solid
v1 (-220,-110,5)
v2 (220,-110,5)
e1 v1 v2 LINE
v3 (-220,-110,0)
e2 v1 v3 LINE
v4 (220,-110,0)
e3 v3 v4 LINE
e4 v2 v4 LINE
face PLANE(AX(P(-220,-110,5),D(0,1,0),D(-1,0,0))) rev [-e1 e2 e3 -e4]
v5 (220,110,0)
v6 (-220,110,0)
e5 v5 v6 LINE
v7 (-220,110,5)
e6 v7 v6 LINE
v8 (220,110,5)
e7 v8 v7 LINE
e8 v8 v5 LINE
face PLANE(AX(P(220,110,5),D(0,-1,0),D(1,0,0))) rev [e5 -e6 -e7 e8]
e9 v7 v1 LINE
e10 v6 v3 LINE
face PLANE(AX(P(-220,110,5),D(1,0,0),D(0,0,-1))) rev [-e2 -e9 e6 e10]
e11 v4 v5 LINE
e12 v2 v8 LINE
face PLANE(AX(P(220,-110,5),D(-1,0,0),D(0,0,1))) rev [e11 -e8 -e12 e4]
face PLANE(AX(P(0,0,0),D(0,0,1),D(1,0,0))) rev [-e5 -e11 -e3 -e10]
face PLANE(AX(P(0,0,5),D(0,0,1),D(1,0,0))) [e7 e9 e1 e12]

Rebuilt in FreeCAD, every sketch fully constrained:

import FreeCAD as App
import Part
import Sketcher
from FreeCAD import Vector
Q = App.Units.Quantity


def add_polygon(sketch, points):
    """Adds a closed chain of lines whose ends are joined by coincident constraints."""
    first, n = sketch.GeometryCount, len(points)
    for a, b in zip(points, points[1:] + points[:1]):
        sketch.addGeometry(Part.LineSegment(App.Vector(*a, 0), App.Vector(*b, 0)), False)
    for i in range(n):
        sketch.addConstraint(Sketcher.Constraint("Coincident", first + i, 2, first + (i + 1) % n, 1))

doc = App.newDocument("Part")
params = doc.addObject("Spreadsheet::Sheet", "Params")
for row, (alias, value) in enumerate([
    ("sketch1_width", "440 mm"),
    ("sketch1_height", "220 mm"),
    ("pad1_length", "5 mm"),
], start=1):
    params.set(f"A{row}", alias)
    params.set(f"B{row}", "=" + value)
    params.setAlias(f"B{row}", alias)

body = doc.addObject("PartDesign::Body", "Body")

sketch1 = doc.addObject("Sketcher::SketchObject", "Sketch")
body.addObject(sketch1)
sketch1.AttachmentSupport = (doc.XY_Plane, [""])
sketch1.MapMode = "FlatFace"
add_polygon(sketch1, [(-220, 110), (-220, -110), (220, -110), (220, 110)])
sketch1.addConstraint([
    Sketcher.Constraint("Vertical", 0),
    Sketcher.Constraint("Horizontal", 1),
    Sketcher.Constraint("Vertical", 2),
    Sketcher.Constraint("Horizontal", 3),
    Sketcher.Constraint("Symmetric", 0, 2, 2, 2, -1, 1),
    Sketcher.Constraint("DistanceX", 1, 1, 1, 2, Q("440 mm")),
    Sketcher.Constraint("DistanceY", 0, 2, 0, 1, Q("220 mm")),
])
sketch1.setExpression("Constraints[9]", "Params.sketch1_width")
sketch1.setExpression("Constraints[10]", "Params.sketch1_height")
pad1 = doc.addObject("PartDesign::Pad", "Pad")
body.addObject(pad1)
pad1.Profile = sketch1
pad1.setExpression("Length", "Params.pad1_length")

doc.recompute()
